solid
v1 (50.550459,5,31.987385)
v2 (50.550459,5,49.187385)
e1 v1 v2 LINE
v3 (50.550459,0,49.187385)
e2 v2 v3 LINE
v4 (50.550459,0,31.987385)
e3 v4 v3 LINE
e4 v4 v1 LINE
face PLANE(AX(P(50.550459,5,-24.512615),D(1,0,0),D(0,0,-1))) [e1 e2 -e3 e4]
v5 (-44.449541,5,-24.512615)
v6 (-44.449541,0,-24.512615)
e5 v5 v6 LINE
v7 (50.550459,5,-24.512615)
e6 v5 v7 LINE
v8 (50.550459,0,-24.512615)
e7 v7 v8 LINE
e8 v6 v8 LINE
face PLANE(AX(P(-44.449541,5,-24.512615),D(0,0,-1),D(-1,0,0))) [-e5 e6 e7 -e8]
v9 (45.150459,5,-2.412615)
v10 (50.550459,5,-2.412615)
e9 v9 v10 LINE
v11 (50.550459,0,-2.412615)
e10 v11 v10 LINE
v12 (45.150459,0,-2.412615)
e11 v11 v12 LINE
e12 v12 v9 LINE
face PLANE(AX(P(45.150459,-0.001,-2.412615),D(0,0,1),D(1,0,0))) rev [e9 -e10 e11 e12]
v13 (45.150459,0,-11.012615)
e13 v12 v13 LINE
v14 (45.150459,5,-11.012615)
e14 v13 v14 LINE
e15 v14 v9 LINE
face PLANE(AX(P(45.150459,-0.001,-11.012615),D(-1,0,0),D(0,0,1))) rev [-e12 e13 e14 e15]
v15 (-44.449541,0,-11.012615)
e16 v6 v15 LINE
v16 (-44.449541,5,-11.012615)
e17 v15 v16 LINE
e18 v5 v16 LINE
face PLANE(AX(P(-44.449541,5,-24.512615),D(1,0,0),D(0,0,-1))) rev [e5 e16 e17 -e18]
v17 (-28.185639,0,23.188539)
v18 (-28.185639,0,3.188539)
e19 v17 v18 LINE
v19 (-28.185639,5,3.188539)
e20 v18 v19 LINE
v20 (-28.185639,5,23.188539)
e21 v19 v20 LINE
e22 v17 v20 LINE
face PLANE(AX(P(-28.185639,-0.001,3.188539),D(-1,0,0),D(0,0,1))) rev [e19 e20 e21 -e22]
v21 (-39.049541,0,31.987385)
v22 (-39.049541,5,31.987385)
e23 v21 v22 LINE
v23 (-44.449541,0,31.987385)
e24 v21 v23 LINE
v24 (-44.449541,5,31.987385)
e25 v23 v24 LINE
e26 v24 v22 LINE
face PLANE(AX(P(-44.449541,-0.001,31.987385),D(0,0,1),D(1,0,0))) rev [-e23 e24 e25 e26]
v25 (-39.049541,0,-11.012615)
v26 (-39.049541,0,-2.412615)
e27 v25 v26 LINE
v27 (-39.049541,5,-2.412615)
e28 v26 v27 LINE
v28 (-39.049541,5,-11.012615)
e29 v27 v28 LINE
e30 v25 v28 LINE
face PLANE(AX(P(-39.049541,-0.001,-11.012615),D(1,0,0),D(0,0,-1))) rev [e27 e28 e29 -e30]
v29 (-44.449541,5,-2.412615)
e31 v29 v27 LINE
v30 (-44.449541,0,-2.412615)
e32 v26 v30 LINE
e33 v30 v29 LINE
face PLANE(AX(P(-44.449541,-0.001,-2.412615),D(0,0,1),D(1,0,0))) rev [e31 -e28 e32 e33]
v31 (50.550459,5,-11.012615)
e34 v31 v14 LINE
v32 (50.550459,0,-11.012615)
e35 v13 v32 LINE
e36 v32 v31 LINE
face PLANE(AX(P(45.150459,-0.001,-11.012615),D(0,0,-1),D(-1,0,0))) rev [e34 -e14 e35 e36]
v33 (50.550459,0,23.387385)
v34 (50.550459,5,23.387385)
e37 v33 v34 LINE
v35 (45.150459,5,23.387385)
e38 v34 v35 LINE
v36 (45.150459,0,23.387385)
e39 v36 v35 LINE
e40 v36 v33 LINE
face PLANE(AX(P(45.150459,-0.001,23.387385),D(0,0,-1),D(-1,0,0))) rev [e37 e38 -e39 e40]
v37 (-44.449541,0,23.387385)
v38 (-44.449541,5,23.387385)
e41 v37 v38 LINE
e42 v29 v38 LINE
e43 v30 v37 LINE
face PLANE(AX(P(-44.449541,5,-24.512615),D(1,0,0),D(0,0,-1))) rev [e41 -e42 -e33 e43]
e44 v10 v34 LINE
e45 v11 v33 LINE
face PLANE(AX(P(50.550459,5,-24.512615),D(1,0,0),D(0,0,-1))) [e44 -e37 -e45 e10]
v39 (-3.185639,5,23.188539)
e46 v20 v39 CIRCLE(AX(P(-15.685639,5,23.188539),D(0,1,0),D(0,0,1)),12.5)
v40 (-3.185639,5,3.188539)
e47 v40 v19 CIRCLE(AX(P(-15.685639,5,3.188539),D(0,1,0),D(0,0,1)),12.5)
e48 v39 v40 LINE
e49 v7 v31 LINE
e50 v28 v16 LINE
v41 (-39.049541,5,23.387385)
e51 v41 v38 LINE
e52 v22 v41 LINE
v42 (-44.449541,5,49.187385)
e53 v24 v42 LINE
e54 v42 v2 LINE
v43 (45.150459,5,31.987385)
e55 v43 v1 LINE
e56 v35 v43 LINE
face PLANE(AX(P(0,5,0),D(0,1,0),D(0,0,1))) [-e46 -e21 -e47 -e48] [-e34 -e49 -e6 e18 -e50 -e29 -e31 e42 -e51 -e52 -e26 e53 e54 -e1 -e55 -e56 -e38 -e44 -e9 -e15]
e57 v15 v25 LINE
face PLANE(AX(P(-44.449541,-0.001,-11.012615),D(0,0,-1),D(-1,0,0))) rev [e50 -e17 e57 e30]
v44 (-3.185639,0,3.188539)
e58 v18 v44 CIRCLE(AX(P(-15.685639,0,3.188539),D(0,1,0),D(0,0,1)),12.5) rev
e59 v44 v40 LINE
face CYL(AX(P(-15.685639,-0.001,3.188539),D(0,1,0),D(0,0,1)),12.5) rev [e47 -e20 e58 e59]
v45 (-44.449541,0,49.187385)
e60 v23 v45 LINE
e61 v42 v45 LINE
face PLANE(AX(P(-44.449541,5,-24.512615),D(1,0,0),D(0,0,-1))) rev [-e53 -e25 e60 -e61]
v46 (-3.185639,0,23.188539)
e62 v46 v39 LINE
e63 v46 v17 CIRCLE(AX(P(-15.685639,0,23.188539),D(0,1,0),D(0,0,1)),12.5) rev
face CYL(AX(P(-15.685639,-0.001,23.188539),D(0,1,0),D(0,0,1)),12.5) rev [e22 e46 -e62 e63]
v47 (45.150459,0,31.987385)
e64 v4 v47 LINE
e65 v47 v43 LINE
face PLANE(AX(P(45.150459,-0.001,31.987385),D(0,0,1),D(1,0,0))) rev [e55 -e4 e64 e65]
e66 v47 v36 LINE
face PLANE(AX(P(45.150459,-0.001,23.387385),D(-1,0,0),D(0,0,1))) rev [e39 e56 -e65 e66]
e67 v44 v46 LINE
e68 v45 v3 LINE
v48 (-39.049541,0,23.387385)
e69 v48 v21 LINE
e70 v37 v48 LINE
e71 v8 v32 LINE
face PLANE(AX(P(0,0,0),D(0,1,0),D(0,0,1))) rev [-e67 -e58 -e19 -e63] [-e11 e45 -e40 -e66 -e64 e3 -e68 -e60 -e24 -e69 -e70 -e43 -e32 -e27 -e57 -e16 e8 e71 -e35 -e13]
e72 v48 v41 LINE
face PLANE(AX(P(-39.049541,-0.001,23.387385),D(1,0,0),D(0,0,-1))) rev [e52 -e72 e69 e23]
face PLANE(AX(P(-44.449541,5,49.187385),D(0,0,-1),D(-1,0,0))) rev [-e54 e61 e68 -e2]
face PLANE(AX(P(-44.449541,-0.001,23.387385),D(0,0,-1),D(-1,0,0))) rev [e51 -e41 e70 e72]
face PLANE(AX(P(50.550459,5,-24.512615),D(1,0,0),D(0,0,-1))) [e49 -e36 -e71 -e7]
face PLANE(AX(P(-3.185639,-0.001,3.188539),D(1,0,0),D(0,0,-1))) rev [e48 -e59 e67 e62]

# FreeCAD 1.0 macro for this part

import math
import FreeCAD as App
import Part
import Sketcher

doc = App.newDocument("Part")
body = doc.addObject("PartDesign::Body", "Body")

sketch1 = body.newObject("Sketcher::SketchObject", "Sketch")
sketch1.AttachmentSupport = (doc.getObject("XZ_Plane"), [""])
sketch1.MapMode = "FlatFace"
sketch1.addGeometry(Part.LineSegment(App.Vector(-44, -25, 0), App.Vector(-44, 49, 0)), False)
sketch1.addGeometry(Part.LineSegment(App.Vector(-44, 49, 0), App.Vector(51, 49, 0)), False)
sketch1.addGeometry(Part.LineSegment(App.Vector(51, 49, 0), App.Vector(51, -25, 0)), False)
sketch1.addGeometry(Part.LineSegment(App.Vector(51, -25, 0), App.Vector(-44, -25, 0)), False)
sketch1.addConstraint(Sketcher.Constraint("Coincident", 0, 2, 1, 1))
sketch1.addConstraint(Sketcher.Constraint("Coincident", 1, 2, 2, 1))
sketch1.addConstraint(Sketcher.Constraint("Coincident", 2, 2, 3, 1))
sketch1.addConstraint(Sketcher.Constraint("Coincident", 3, 2, 0, 1))
sketch1.addConstraint(Sketcher.Constraint("Vertical", 0))
sketch1.addConstraint(Sketcher.Constraint("Horizontal", 1))
sketch1.addConstraint(Sketcher.Constraint("Vertical", 2))
sketch1.addConstraint(Sketcher.Constraint("Horizontal", 3))
sketch1.addConstraint(Sketcher.Constraint("DistanceX", 1, 1, 1, 2, 95.0))
sketch1.addConstraint(Sketcher.Constraint("DistanceY", 0, 1, 0, 2, 73.7))
sketch1.addConstraint(Sketcher.Constraint("DistanceX", 0, 2, -1, 1, 44.449541))
sketch1.addConstraint(Sketcher.Constraint("DistanceY", -1, 1, 0, 2, 49.187385))
pad1 = body.newObject("PartDesign::Pad", "Pad")
pad1.Profile = sketch1
pad1.Length = 5
pad1.Reversed = True

sketch2 = body.newObject("Sketcher::SketchObject", "Sketch001")
sketch2.AttachmentSupport = (doc.getObject("XZ_Plane"), [""])
sketch2.MapMode = "FlatFace"
sketch2.AttachmentOffset = App.Placement(App.Vector(0, 0, -5), App.Rotation())
sketch2.addGeometry(Part.LineSegment(App.Vector(-44, -11, 0), App.Vector(-44, -2, 0)), False)
sketch2.addGeometry(Part.LineSegment(App.Vector(-44, -2, 0), App.Vector(-39, -2, 0)), False)
sketch2.addGeometry(Part.LineSegment(App.Vector(-39, -2, 0), App.Vector(-39, -11, 0)), False)
sketch2.addGeometry(Part.LineSegment(App.Vector(-39, -11, 0), App.Vector(-44, -11, 0)), False)
sketch2.addConstraint(Sketcher.Constraint("Coincident", 0, 2, 1, 1))
sketch2.addConstraint(Sketcher.Constraint("Coincident", 1, 2, 2, 1))
sketch2.addConstraint(Sketcher.Constraint("Coincident", 2, 2, 3, 1))
sketch2.addConstraint(Sketcher.Constraint("Coincident", 3, 2, 0, 1))
sketch2.addConstraint(Sketcher.Constraint("Vertical", 0))
sketch2.addConstraint(Sketcher.Constraint("Horizontal", 1))
sketch2.addConstraint(Sketcher.Constraint("Vertical", 2))
sketch2.addConstraint(Sketcher.Constraint("Horizontal", 3))
sketch2.addConstraint(Sketcher.Constraint("DistanceX", 1, 1, 1, 2, 5.4))
sketch2.addConstraint(Sketcher.Constraint("DistanceY", 0, 1, 0, 2, 8.6))
sketch2.addConstraint(Sketcher.Constraint("DistanceX", 0, 2, -1, 1, 44.449541))
sketch2.addConstraint(Sketcher.Constraint("DistanceY", 0, 2, -1, 1, 2.412615))
pocket1 = body.newObject("PartDesign::Pocket", "Pocket")
pocket1.Profile = sketch2
pocket1.Type = "UpToFirst"
pocket1.Reversed = True

sketch3 = body.newObject("Sketcher::SketchObject", "Sketch002")
sketch3.AttachmentSupport = (doc.getObject("XZ_Plane"), [""])
sketch3.MapMode = "FlatFace"
sketch3.AttachmentOffset = App.Placement(App.Vector(0, 0, -5), App.Rotation())
sketch3.addGeometry(Part.LineSegment(App.Vector(-44, 23, 0), App.Vector(-44, 32, 0)), False)
sketch3.addGeometry(Part.LineSegment(App.Vector(-44, 32, 0), App.Vector(-39, 32, 0)), False)
sketch3.addGeometry(Part.LineSegment(App.Vector(-39, 32, 0), App.Vector(-39, 23, 0)), False)
sketch3.addGeometry(Part.LineSegment(App.Vector(-39, 23, 0), App.Vector(-44, 23, 0)), False)
sketch3.addConstraint(Sketcher.Constraint("Coincident", 0, 2, 1, 1))
sketch3.addConstraint(Sketcher.Constraint("Coincident", 1, 2, 2, 1))
sketch3.addConstraint(Sketcher.Constraint("Coincident", 2, 2, 3, 1))
sketch3.addConstraint(Sketcher.Constraint("Coincident", 3, 2, 0, 1))
sketch3.addConstraint(Sketcher.Constraint("Vertical", 0))
sketch3.addConstraint(Sketcher.Constraint("Horizontal", 1))
sketch3.addConstraint(Sketcher.Constraint("Vertical", 2))
sketch3.addConstraint(Sketcher.Constraint("Horizontal", 3))
sketch3.addConstraint(Sketcher.Constraint("DistanceX", 1, 1, 1, 2, 5.4))
sketch3.addConstraint(Sketcher.Constraint("DistanceY", 0, 1, 0, 2, 8.6))
sketch3.addConstraint(Sketcher.Constraint("DistanceX", 0, 2, -1, 1, 44.449541))
sketch3.addConstraint(Sketcher.Constraint("DistanceY", -1, 1, 0, 2, 31.987385))
pocket2 = body.newObject("PartDesign::Pocket", "Pocket001")
pocket2.Profile = sketch3
pocket2.Type = "UpToFirst"
pocket2.Reversed = True

sketch4 = body.newObject("Sketcher::SketchObject", "Sketch003")
sketch4.AttachmentSupport = (doc.getObject("XZ_Plane"), [""])
sketch4.MapMode = "FlatFace"
sketch4.AttachmentOffset = App.Placement(App.Vector(0, 0, -5), App.Rotation())
sketch4.addGeometry(Part.LineSegment(App.Vector(45, -11, 0), App.Vector(45, -2, 0)), False)
sketch4.addGeometry(Part.LineSegment(App.Vector(45, -2, 0), App.Vector(51, -2, 0)), False)
sketch4.addGeometry(Part.LineSegment(App.Vector(51, -2, 0), App.Vector(51, -11, 0)), False)
sketch4.addGeometry(Part.LineSegment(App.Vector(51, -11, 0), App.Vector(45, -11, 0)), False)
sketch4.addConstraint(Sketcher.Constraint("Coincident", 0, 2, 1, 1))
sketch4.addConstraint(Sketcher.Constraint("Coincident", 1, 2, 2, 1))
sketch4.addConstraint(Sketcher.Constraint("Coincident", 2, 2, 3, 1))
sketch4.addConstraint(Sketcher.Constraint("Coincident", 3, 2, 0, 1))
sketch4.addConstraint(Sketcher.Constraint("Vertical", 0))
sketch4.addConstraint(Sketcher.Constraint("Horizontal", 1))
sketch4.addConstraint(Sketcher.Constraint("Vertical", 2))
sketch4.addConstraint(Sketcher.Constraint("Horizontal", 3))
sketch4.addConstraint(Sketcher.Constraint("DistanceX", 1, 1, 1, 2, 5.4))
sketch4.addConstraint(Sketcher.Constraint("DistanceY", 0, 1, 0, 2, 8.6))
sketch4.addConstraint(Sketcher.Constraint("DistanceX", -1, 1, 0, 2, 45.150459))
sketch4.addConstraint(Sketcher.Constraint("DistanceY", 0, 2, -1, 1, 2.412615))
pocket3 = body.newObject("PartDesign::Pocket", "Pocket002")
pocket3.Profile = sketch4
pocket3.Type = "UpToFirst"
pocket3.Reversed = True

sketch5 = body.newObject("Sketcher::SketchObject", "Sketch004")
sketch5.AttachmentSupport = (doc.getObject("XZ_Plane"), [""])
sketch5.MapMode = "FlatFace"
sketch5.AttachmentOffset = App.Placement(App.Vector(0, 0, -5), App.Rotation())
sketch5.addGeometry(Part.LineSegment(App.Vector(45, 23, 0), App.Vector(45, 32, 0)), False)
sketch5.addGeometry(Part.LineSegment(App.Vector(45, 32, 0), App.Vector(51, 32, 0)), False)
sketch5.addGeometry(Part.LineSegment(App.Vector(51, 32, 0), App.Vector(51, 23, 0)), False)
sketch5.addGeometry(Part.LineSegment(App.Vector(51, 23, 0), App.Vector(45, 23, 0)), False)
sketch5.addConstraint(Sketcher.Constraint("Coincident", 0, 2, 1, 1))
sketch5.addConstraint(Sketcher.Constraint("Coincident", 1, 2, 2, 1))
sketch5.addConstraint(Sketcher.Constraint("Coincident", 2, 2, 3, 1))
sketch5.addConstraint(Sketcher.Constraint("Coincident", 3, 2, 0, 1))
sketch5.addConstraint(Sketcher.Constraint("Vertical", 0))
sketch5.addConstraint(Sketcher.Constraint("Horizontal", 1))
sketch5.addConstraint(Sketcher.Constraint("Vertical", 2))
sketch5.addConstraint(Sketcher.Constraint("Horizontal", 3))
sketch5.addConstraint(Sketcher.Constraint("DistanceX", 1, 1, 1, 2, 5.4))
sketch5.addConstraint(Sketcher.Constraint("DistanceY", 0, 1, 0, 2, 8.6))
sketch5.addConstraint(Sketcher.Constraint("DistanceX", -1, 1, 0, 2, 45.150459))
sketch5.addConstraint(Sketcher.Constraint("DistanceY", -1, 1, 0, 2, 31.987385))
pocket4 = body.newObject("PartDesign::Pocket", "Pocket003")
pocket4.Profile = sketch5
pocket4.Type = "UpToFirst"
pocket4.Reversed = True

sketch6 = body.newObject("Sketcher::SketchObject", "Sketch005")
sketch6.AttachmentSupport = (doc.getObject("XZ_Plane"), [""])
sketch6.MapMode = "FlatFace"
sketch6.AttachmentOffset = App.Placement(App.Vector(0, 0, -5), App.Rotation())
sketch6.addGeometry(Part.LineSegment(App.Vector(-3, 23, 0), App.Vector(-3, 3, 0)), False)
sketch6.addGeometry(Part.ArcOfCircle(Part.Circle(App.Vector(-16, 3, 0), App.Vector(0, 0, 1), 12), math.radians(180), math.radians(360)), False)
sketch6.addGeometry(Part.LineSegment(App.Vector(-28, 3, 0), App.Vector(-28, 23, 0)), False)
sketch6.addGeometry(Part.ArcOfCircle(Part.Circle(App.Vector(-16, 23, 0), App.Vector(0, 0, 1), 12), math.radians(0), math.radians(180)), False)
sketch6.addConstraint(Sketcher.Constraint("Tangent", 0, 2, 1, 2))
sketch6.addConstraint(Sketcher.Constraint("Tangent", 1, 1, 2, 1))
sketch6.addConstraint(Sketcher.Constraint("Tangent", 2, 2, 3, 2))
sketch6.addConstraint(Sketcher.Constraint("Tangent", 3, 1, 0, 1))
sketch6.addConstraint(Sketcher.Constraint("Vertical", 0))
sketch6.addConstraint(Sketcher.Constraint("Vertical", 2))
sketch6.addConstraint(Sketcher.Constraint("Radius", 1, 12.5))
sketch6.addConstraint(Sketcher.Constraint("DistanceY", 0, 2, 0, 1, 20.0))
sketch6.addConstraint(Sketcher.Constraint("DistanceX", 1, 3, -1, 1, 15.685639))
sketch6.addConstraint(Sketcher.Constraint("DistanceY", -1, 1, 1, 3, 3.188539))
pocket5 = body.newObject("PartDesign::Pocket", "Pocket004")
pocket5.Profile = sketch6
pocket5.Type = "UpToFirst"
pocket5.Reversed = True

doc.recompute()
